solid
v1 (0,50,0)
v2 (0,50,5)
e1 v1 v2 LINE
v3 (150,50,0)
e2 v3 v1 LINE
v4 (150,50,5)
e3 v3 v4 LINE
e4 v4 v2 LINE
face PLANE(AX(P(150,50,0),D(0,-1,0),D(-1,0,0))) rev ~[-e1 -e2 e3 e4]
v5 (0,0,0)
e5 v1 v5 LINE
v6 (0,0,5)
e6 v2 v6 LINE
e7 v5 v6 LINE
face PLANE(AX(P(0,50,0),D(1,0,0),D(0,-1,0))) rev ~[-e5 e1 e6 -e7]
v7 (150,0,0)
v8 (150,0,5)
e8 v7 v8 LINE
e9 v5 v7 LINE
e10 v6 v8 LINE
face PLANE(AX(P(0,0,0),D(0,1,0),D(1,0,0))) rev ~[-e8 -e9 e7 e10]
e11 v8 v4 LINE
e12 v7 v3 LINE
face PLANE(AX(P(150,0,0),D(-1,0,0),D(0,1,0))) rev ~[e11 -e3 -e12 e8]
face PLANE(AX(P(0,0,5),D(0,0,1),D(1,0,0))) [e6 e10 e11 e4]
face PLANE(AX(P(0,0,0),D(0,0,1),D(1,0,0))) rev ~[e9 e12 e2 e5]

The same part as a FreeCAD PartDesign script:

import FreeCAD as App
import Part
import Sketcher
Q = App.Units.Quantity


def add_polygon(sketch, points):
    """Adds a closed chain of lines whose ends are joined by coincident constraints."""
    first, n = sketch.GeometryCount, len(points)
    for a, b in zip(points, points[1:] + points[:1]):
        sketch.addGeometry(Part.LineSegment(App.Vector(*a, 0), App.Vector(*b, 0)), False)
    for i in range(n):
        sketch.addConstraint(Sketcher.Constraint("Coincident", first + i, 2, first + (i + 1) % n, 1))

doc = App.newDocument("Part")
body = doc.addObject("PartDesign::Body", "Body")

sketch1 = doc.addObject("Sketcher::SketchObject", "Sketch")
body.addObject(sketch1)
sketch1.AttachmentSupport = (doc.XY_Plane, [""])
sketch1.MapMode = "FlatFace"
add_polygon(sketch1, [(0, 50), (0, 0), (150, 0), (150, 50)])
sketch1.addConstraint(Sketcher.Constraint("Vertical", 0))
sketch1.addConstraint(Sketcher.Constraint("Horizontal", 1))
sketch1.addConstraint(Sketcher.Constraint("Vertical", 2))
sketch1.addConstraint(Sketcher.Constraint("Horizontal", 3))
sketch1.addConstraint(Sketcher.Constraint("Coincident", 0, 2, -1, 1))
sketch1.addConstraint(Sketcher.Constraint("DistanceX", 1, 1, 1, 2, Q("150 mm")))
sketch1.addConstraint(Sketcher.Constraint("DistanceY", 0, 2, 0, 1, Q("50 mm")))
pad1 = doc.addObject("PartDesign::Pad", "Pad")
body.addObject(pad1)
pad1.Profile = sketch1
pad1.Length = 5

doc.recompute()
